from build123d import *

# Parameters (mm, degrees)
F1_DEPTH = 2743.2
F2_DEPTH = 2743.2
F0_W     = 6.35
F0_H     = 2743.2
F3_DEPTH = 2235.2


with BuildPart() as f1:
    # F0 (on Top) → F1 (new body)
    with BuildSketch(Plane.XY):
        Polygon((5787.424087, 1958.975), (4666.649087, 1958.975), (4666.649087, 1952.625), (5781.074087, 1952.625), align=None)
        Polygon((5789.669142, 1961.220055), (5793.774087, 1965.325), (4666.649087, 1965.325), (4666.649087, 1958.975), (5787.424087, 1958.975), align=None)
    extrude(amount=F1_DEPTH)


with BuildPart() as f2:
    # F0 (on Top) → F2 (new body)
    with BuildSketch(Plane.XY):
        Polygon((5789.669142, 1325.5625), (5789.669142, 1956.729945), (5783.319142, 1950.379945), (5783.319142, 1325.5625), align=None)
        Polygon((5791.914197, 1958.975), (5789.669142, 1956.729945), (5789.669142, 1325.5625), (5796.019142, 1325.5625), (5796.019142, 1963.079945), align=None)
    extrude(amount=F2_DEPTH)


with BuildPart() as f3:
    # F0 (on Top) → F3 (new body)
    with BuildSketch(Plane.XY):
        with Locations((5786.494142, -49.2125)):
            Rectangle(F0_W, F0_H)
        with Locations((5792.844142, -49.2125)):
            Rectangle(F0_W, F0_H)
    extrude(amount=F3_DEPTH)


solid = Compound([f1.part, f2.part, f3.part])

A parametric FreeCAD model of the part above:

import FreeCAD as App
import Part
import Sketcher
Q = App.Units.Quantity


def add_polygon(sketch, points):
    """Adds a closed chain of lines whose ends are joined by coincident constraints."""
    first, n = sketch.GeometryCount, len(points)
    for a, b in zip(points, points[1:] + points[:1]):
        sketch.addGeometry(Part.LineSegment(App.Vector(*a, 0), App.Vector(*b, 0)), False)
    for i in range(n):
        sketch.addConstraint(Sketcher.Constraint("Coincident", first + i, 2, first + (i + 1) % n, 1))

doc = App.newDocument("Part")
params = doc.addObject("Spreadsheet::Sheet", "Params")
for row, (alias, value) in enumerate([
    ("sketch1_height", "0.5 in"),
    ("sketch1_width", "43.875 in"),
    ("pad1_length", "108 in"),
    ("sketch2_width", "0.5 in"),
    ("pad2_length", "108 in"),
    ("sketch3_height", "108 in"),
    ("sketch3_width", "0.5 in"),
    ("pad3_length", "88 in"),
], start=1):
    params.set(f"A{row}", alias)
    params.set(f"B{row}", "=" + value)
    params.setAlias(f"B{row}", alias)

body = doc.addObject("PartDesign::Body", "Body")

sketch1 = body.newObject("Sketcher::SketchObject", "Sketch")
sketch1.AttachmentSupport = (doc.getObject("XY_Plane"), [""])
sketch1.MapMode = "FlatFace"
add_polygon(sketch1, [(4667, 1953), (5781, 1953), (5794, 1965), (4667, 1965)])
sketch1.addConstraint([
    Sketcher.Constraint("Horizontal", 0),
    Sketcher.Constraint("Horizontal", 2),
    Sketcher.Constraint("Vertical", 3),
    Sketcher.Constraint("DistanceY", 3, 2, 3, 1, Q("0.5 in")),
    Sketcher.Constraint("Angle", 1, Q("45 deg")),
    Sketcher.Constraint("DistanceX", 0, 1, 0, 2, Q("43.875 in")),
    Sketcher.Constraint("DistanceY", -1, 1, 0, 2, Q("76.875 in")),
    Sketcher.Constraint("DistanceX", -1, 1, 0, 2, 5781.074087),
])
sketch1.setExpression("Constraints[7]", "Params.sketch1_height")
sketch1.setExpression("Constraints[9]", "Params.sketch1_width")
pad1 = body.newObject("PartDesign::Pad", "Pad")
pad1.Profile = sketch1
pad1.setExpression("Length", "Params.pad1_length")
body2 = doc.addObject("PartDesign::Body", "Body001")

sketch2 = body2.newObject("Sketcher::SketchObject", "Sketch001")
sketch2.AttachmentSupport = (doc.getObject("XY_Plane001"), [""])
sketch2.MapMode = "FlatFace"
add_polygon(sketch2, [(5783, 1950), (5783, 1326), (5796, 1326), (5796, 1963)])
sketch2.addConstraint([
    Sketcher.Constraint("Vertical", 0),
    Sketcher.Constraint("Horizontal", 1),
    Sketcher.Constraint("Vertical", 2),
    Sketcher.Constraint("DistanceX", 1, 1, 1, 2, Q("0.5 in")),
    Sketcher.Constraint("Angle", 3, Q("-135 deg")),
    Sketcher.Constraint("DistanceY", -1, 1, 0, 2, Q("52.1875 in")),
    Sketcher.Constraint("DistanceY", 0, 2, 0, 1, 624.817445),
    Sketcher.Constraint("DistanceX", -1, 1, 1, 2, 5796.019142),
])
sketch2.setExpression("Constraints[7]", "Params.sketch2_width")
pad2 = body2.newObject("PartDesign::Pad", "Pad001")
pad2.Profile = sketch2
pad2.setExpression("Length", "Params.pad2_length")
body3 = doc.addObject("PartDesign::Body", "Body002")

sketch3 = body3.newObject("Sketcher::SketchObject", "Sketch002")
sketch3.AttachmentSupport = (doc.getObject("XY_Plane002"), [""])
sketch3.MapMode = "FlatFace"
add_polygon(sketch3, [(5783, 1322), (5783, -1421), (5796, -1421), (5796, 1322)])
sketch3.addConstraint([
    Sketcher.Constraint("Vertical", 0),
    Sketcher.Constraint("Horizontal", 1),
    Sketcher.Constraint("Vertical", 2),
    Sketcher.Constraint("Horizontal", 3),
    Sketcher.Constraint("DistanceY", 0, 2, 0, 1, Q("108 in")),
    Sketcher.Constraint("DistanceX", 1, 1, 1, 2, Q("0.5 in")),
    Sketcher.Constraint("DistanceY", 0, 2, -1, 1, Q("55.9375 in")),
    Sketcher.Constraint("DistanceX", -1, 1, 1, 2, 5796.019142),
])
sketch3.setExpression("Constraints[8]", "Params.sketch3_height")
sketch3.setExpression("Constraints[9]", "Params.sketch3_width")
pad3 = body3.newObject("PartDesign::Pad", "Pad002")
pad3.Profile = sketch3
pad3.setExpression("Length", "Params.pad3_length")

doc.recompute()
